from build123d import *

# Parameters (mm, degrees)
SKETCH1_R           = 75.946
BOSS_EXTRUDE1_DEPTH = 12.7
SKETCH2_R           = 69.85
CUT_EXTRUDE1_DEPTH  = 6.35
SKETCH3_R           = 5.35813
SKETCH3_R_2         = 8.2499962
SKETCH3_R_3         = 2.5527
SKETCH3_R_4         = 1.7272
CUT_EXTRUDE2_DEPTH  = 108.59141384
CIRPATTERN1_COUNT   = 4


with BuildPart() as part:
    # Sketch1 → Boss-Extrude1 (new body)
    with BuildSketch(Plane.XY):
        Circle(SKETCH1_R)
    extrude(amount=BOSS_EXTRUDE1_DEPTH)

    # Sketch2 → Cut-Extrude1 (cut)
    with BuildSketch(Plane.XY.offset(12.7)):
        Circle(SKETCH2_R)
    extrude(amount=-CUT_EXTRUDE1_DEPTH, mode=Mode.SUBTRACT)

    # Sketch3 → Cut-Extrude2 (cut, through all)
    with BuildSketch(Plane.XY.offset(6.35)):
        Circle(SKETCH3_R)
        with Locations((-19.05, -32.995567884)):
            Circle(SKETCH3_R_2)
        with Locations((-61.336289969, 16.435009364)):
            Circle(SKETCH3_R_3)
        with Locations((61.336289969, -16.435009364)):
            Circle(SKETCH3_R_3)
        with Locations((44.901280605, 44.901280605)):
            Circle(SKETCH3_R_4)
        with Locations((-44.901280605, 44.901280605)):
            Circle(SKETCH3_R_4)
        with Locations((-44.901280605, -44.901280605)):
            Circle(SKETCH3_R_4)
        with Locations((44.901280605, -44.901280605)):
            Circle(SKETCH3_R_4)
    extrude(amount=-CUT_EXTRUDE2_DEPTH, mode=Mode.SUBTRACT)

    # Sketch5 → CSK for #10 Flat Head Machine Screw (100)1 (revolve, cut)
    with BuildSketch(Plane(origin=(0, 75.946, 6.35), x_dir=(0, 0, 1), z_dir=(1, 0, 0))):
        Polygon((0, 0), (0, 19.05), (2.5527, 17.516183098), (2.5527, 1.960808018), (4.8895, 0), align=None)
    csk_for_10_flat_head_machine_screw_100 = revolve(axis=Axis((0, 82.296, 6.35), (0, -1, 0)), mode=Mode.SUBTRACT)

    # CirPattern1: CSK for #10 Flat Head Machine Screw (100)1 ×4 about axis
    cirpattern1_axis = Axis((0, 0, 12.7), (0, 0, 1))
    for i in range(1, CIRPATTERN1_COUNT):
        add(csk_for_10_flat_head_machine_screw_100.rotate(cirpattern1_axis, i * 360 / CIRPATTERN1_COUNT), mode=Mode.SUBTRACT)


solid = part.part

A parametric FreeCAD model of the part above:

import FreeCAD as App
import Part
import Sketcher
Q = App.Units.Quantity

doc = App.newDocument("Part")
body = doc.addObject("PartDesign::Body", "Body")

# Sketch on XY plane
sketch1 = body.newObject("Sketcher::SketchObject", "Sketch")
sketch1.AttachmentSupport = (doc.getObject("XY_Plane"), [""])
sketch1.MapMode = "FlatFace"
sketch1.addGeometry(Part.Circle(App.Vector(0, 0, 0), App.Vector(0, 0, 1), 76), False)
sketch1.addConstraint(Sketcher.Constraint("Coincident", 0, 3, -1, 1))
sketch1.addConstraint(Sketcher.Constraint("Diameter", 0, Q("5.98 in")))
pad1 = body.newObject("PartDesign::Pad", "Pad")
pad1.Profile = sketch1
pad1.Length = Q("0.5 in")

# Sketch on XY plane
sketch2 = body.newObject("Sketcher::SketchObject", "Sketch001")
sketch2.AttachmentSupport = (doc.getObject("XY_Plane"), [""])
sketch2.MapMode = "FlatFace"
sketch2.AttachmentOffset = App.Placement(App.Vector(0, 0, 0.5 * 25.4), App.Rotation())
sketch2.addGeometry(Part.Circle(App.Vector(0, 0, 0), App.Vector(0, 0, 1), 70), False)
sketch2.addConstraint(Sketcher.Constraint("Coincident", 0, 3, -1, 1))
sketch2.addConstraint(Sketcher.Constraint("Diameter", 0, Q("5.5 in")))
pocket1 = body.newObject("PartDesign::Pocket", "Pocket")
pocket1.Profile = sketch2
pocket1.Length = Q("0.25 in")

# Sketch on XY plane
sketch3 = body.newObject("Sketcher::SketchObject", "Sketch002")
sketch3.AttachmentSupport = (doc.getObject("XY_Plane"), [""])
sketch3.MapMode = "FlatFace"
sketch3.AttachmentOffset = App.Placement(App.Vector(0, 0, 0.25 * 25.4), App.Rotation())
sketch3.addGeometry(Part.Circle(App.Vector(0, 0, 0), App.Vector(0, 0, 1), 5.4), False)
sketch3.addGeometry(Part.Circle(App.Vector(-19.1, -33, 0), App.Vector(0, 0, 1), 8.2), False)
sketch3.addGeometry(Part.Circle(App.Vector(-61.3, 16.4, 0), App.Vector(0, 0, 1), 2.6), False)
sketch3.addGeometry(Part.Circle(App.Vector(61.3, -16.4, 0), App.Vector(0, 0, 1), 2.6), False)
sketch3.addGeometry(Part.Circle(App.Vector(44.9, 44.9, 0), App.Vector(0, 0, 1), 1.7), False)
sketch3.addGeometry(Part.Circle(App.Vector(-44.9, 44.9, 0), App.Vector(0, 0, 1), 1.7), False)
sketch3.addGeometry(Part.Circle(App.Vector(-44.9, -44.9, 0), App.Vector(0, 0, 1), 1.7), False)
sketch3.addGeometry(Part.Circle(App.Vector(44.9, -44.9, 0), App.Vector(0, 0, 1), 1.7), False)
sketch3.addConstraint(Sketcher.Constraint("Coincident", 0, 3, -1, 1))
sketch3.addConstraint(Sketcher.Constraint("Equal", 2, 3))
sketch3.addConstraint(Sketcher.Constraint("Equal", 4, 5))
sketch3.addConstraint(Sketcher.Constraint("Equal", 5, 6))
sketch3.addConstraint(Sketcher.Constraint("Equal", 6, 7))
sketch3.addConstraint(Sketcher.Constraint("Symmetric", 2, 3, 3, 3, -1, 1))
sketch3.addConstraint(Sketcher.Constraint("Symmetric", 4, 3, 6, 3, -1, 1))
sketch3.addConstraint(Sketcher.Constraint("Symmetric", 5, 3, 7, 3, -1, 1))
sketch3.addConstraint(Sketcher.Constraint("Symmetric", 4, 3, 5, 3, -2))
sketch3.addConstraint(Sketcher.Constraint("Diameter", 2, Q("0.201 in")))
sketch3.addConstraint(Sketcher.Constraint("Diameter", 4, Q("0.136 in")))
sketch3.addConstraint(Sketcher.Constraint("Diameter", 0, Q("0.4219 in")))
sketch3.addConstraint(Sketcher.Constraint("DistanceX", 1, 3, -1, 1, Q("0.75 in")))
sketch3.addConstraint(Sketcher.Constraint("Diameter", 1, Q("16.499992 mm")))
sketch3.addConstraint(Sketcher.Constraint("DistanceX", 2, 3, -1, 1, Q("61.33629 mm")))
sketch3.addConstraint(Sketcher.Constraint("DistanceY", -1, 1, 2, 3, Q("16.435009 mm")))
sketch3.addConstraint(Sketcher.Constraint("DistanceX", -1, 1, 4, 3, Q("44.901281 mm")))
sketch3.addConstraint(Sketcher.Constraint("DistanceY", -1, 1, 4, 3, Q("44.901281 mm")))
sketch3.addConstraint(Sketcher.Constraint("DistanceY", 1, 3, 3, 3, Q("16.560559 mm")))
pocket2 = body.newObject("PartDesign::Pocket", "Pocket001")
pocket2.Profile = sketch3
pocket2.Type = "ThroughAll"

# Sketch on YZ plane
sketch4 = body.newObject("Sketcher::SketchObject", "Sketch003")
sketch4.AttachmentSupport = (doc.getObject("YZ_Plane"), [""])
sketch4.MapMode = "FlatFace"
sketch4.addGeometry(Part.LineSegment(App.Vector(56.9, 6.3, 0), App.Vector(75.9, 6.3, 0)), False)
sketch4.addGeometry(Part.LineSegment(App.Vector(75.9, 6.3, 0), App.Vector(75.9, 11.2, 0)), False)
sketch4.addGeometry(Part.LineSegment(App.Vector(75.9, 11.2, 0), App.Vector(74, 8.9, 0)), False)
sketch4.addGeometry(Part.LineSegment(App.Vector(74, 8.9, 0), App.Vector(58.4, 8.9, 0)), False)
sketch4.addGeometry(Part.LineSegment(App.Vector(58.4, 8.9, 0), App.Vector(56.9, 6.3, 0)), False)
sketch4.addGeometry(Part.LineSegment(App.Vector(75.9, 6.3, 0), App.Vector(56.9, 6.3, 0)), True)  # axis
sketch4.addConstraint(Sketcher.Constraint("Coincident", 0, 2, 1, 1))
sketch4.addConstraint(Sketcher.Constraint("Coincident", 1, 2, 2, 1))
sketch4.addConstraint(Sketcher.Constraint("Coincident", 2, 2, 3, 1))
sketch4.addConstraint(Sketcher.Constraint("Coincident", 3, 2, 4, 1))
sketch4.addConstraint(Sketcher.Constraint("Coincident", 4, 2, 0, 1))
sketch4.addConstraint(Sketcher.Constraint("Horizontal", 0))
sketch4.addConstraint(Sketcher.Constraint("Vertical", 1))
sketch4.addConstraint(Sketcher.Constraint("Horizontal", 3))
sketch4.addConstraint(Sketcher.Constraint("Horizontal", 5))
sketch4.addConstraint(Sketcher.Constraint("Coincident", 5, 1, 0, 2))
sketch4.addConstraint(Sketcher.Constraint("Equal", 0, 5))
sketch4.addConstraint(Sketcher.Constraint("Angle", 2, Q("-130 deg")))
sketch4.addConstraint(Sketcher.Constraint("Angle", 4, Q("-121 deg")))
sketch4.addConstraint(Sketcher.Constraint("DistanceX", 0, 1, 0, 2, Q("0.75 in")))
sketch4.addConstraint(Sketcher.Constraint("DistanceX", -1, 1, 0, 2, Q("2.99 in")))
sketch4.addConstraint(Sketcher.Constraint("DistanceY", -1, 1, 0, 2, Q("0.25 in")))
sketch4.addConstraint(Sketcher.Constraint("DistanceY", 1, 1, 1, 2, Q("0.1925 in")))
sketch4.addConstraint(Sketcher.Constraint("DistanceY", 2, 2, 1, 2, Q("0.092 in")))
groove = body.newObject("PartDesign::Groove", "Groove")
groove.Profile = sketch4
groove.ReferenceAxis = (sketch4, ["Axis0"])
groove.Angle = 360
doc.recompute()

polarpattern = body.newObject("PartDesign::PolarPattern", "PolarPattern")
polarpattern.Originals = [groove]
polarpattern.Axis = (doc.getObject("Z_Axis"), [""])
polarpattern.Angle = 360
polarpattern.Occurrences = 4
body.Tip = polarpattern

doc.recompute()
